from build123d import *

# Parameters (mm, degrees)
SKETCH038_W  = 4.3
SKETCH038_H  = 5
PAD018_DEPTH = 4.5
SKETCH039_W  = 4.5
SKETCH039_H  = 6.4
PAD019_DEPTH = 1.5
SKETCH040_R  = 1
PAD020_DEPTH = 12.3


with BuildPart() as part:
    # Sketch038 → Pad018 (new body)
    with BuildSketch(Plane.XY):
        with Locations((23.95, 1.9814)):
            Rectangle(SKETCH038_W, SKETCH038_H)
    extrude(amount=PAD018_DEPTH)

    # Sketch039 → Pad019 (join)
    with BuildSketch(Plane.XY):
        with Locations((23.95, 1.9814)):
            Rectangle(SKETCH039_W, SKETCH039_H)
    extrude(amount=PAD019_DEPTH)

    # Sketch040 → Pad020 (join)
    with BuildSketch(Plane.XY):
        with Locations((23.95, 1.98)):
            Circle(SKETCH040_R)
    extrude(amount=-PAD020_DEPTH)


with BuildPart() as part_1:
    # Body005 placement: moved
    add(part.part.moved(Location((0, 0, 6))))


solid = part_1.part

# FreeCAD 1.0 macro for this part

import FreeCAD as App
import Part
import Sketcher

V = App.Vector
Q = App.Units.Quantity


def add_polygon(sketch, points):
    """Adds a closed chain of lines whose ends are joined by coincident constraints."""
    first, n = sketch.GeometryCount, len(points)
    for a, b in zip(points, points[1:] + points[:1]):
        sketch.addGeometry(Part.LineSegment(App.Vector(*a, 0), App.Vector(*b, 0)), False)
    for i in range(n):
        sketch.addConstraint(Sketcher.Constraint("Coincident", first + i, 2, first + (i + 1) % n, 1))

doc = App.newDocument("Part")
body = doc.addObject("PartDesign::Body", "Body")

sketch1 = doc.addObject("Sketcher::SketchObject", "Sketch")
body.addObject(sketch1)
sketch1.AttachmentSupport = (doc.XY_Plane, [""])
sketch1.MapMode = "FlatFace"
add_polygon(sketch1, [(21.8, 4.5), (21.8, -0.5), (26.1, -0.5), (26.1, 4.5)])
sketch1.addConstraint([
    Sketcher.Constraint("Vertical", 0),
    Sketcher.Constraint("Horizontal", 1),
    Sketcher.Constraint("Vertical", 2),
    Sketcher.Constraint("Horizontal", 3),
    Sketcher.Constraint("DistanceY", 0, 2, 0, 1, Q("5 mm")),
    Sketcher.Constraint("DistanceX", 1, 1, 1, 2, Q("4.3 mm")),
    Sketcher.Constraint("DistanceX", -1, 1, 0, 2, Q("21.8 mm")),
    Sketcher.Constraint("DistanceY", 0, 2, -1, 1, Q("0.5186 mm")),
])
pad1 = doc.addObject("PartDesign::Pad", "Pad")
body.addObject(pad1)
pad1.Profile = sketch1
pad1.Length = 4.5

sketch2 = doc.addObject("Sketcher::SketchObject", "Sketch001")
body.addObject(sketch2)
sketch2.AttachmentSupport = (doc.XY_Plane, [""])
sketch2.MapMode = "FlatFace"
add_polygon(sketch2, [(21.7, 5.2), (21.7, -1.2), (26.2, -1.2), (26.2, 5.2)])
sketch2.addConstraint([
    Sketcher.Constraint("Vertical", 0),
    Sketcher.Constraint("Horizontal", 1),
    Sketcher.Constraint("Vertical", 2),
    Sketcher.Constraint("Horizontal", 3),
    Sketcher.Constraint("DistanceX", 1, 1, 1, 2, Q("4.5 mm")),
    Sketcher.Constraint("DistanceY", 0, 2, 0, 1, Q("6.4 mm")),
    Sketcher.Constraint("DistanceX", -1, 1, 0, 2, Q("21.7 mm")),
    Sketcher.Constraint("DistanceY", 0, 2, -1, 1, Q("1.2186 mm")),
])
pad2 = doc.addObject("PartDesign::Pad", "Pad001")
body.addObject(pad2)
pad2.Profile = sketch2
pad2.Length = 1.5

sketch3 = doc.addObject("Sketcher::SketchObject", "Sketch002")
body.addObject(sketch3)
sketch3.AttachmentSupport = (doc.XY_Plane, [""])
sketch3.MapMode = "FlatFace"
sketch3.addGeometry(Part.Circle(V(23.9, 2, 0), V(0, 0, 1), 1), False)
sketch3.addConstraint([
    Sketcher.Constraint("Diameter", 0, Q("2 mm")),
    Sketcher.Constraint("DistanceX", -1, 1, 0, 3, Q("23.95 mm")),
    Sketcher.Constraint("DistanceY", -1, 1, 0, 3, Q("1.98 mm")),
])
pad3 = doc.addObject("PartDesign::Pad", "Pad002")
body.addObject(pad3)
pad3.Profile = sketch3
pad3.Length = 12.3
pad3.Reversed = True
body2 = doc.addObject("PartDesign::Body", "Body001")
doc.recompute()

body.Placement = App.Placement(V(0, 0, 6), App.Rotation(V(0, 0, 1), 0))
boolean = doc.addObject("PartDesign::Boolean", "Boolean")
body2.addObject(boolean)
boolean.Type = "Fuse"
boolean.addObjects([body])

doc.recompute()
